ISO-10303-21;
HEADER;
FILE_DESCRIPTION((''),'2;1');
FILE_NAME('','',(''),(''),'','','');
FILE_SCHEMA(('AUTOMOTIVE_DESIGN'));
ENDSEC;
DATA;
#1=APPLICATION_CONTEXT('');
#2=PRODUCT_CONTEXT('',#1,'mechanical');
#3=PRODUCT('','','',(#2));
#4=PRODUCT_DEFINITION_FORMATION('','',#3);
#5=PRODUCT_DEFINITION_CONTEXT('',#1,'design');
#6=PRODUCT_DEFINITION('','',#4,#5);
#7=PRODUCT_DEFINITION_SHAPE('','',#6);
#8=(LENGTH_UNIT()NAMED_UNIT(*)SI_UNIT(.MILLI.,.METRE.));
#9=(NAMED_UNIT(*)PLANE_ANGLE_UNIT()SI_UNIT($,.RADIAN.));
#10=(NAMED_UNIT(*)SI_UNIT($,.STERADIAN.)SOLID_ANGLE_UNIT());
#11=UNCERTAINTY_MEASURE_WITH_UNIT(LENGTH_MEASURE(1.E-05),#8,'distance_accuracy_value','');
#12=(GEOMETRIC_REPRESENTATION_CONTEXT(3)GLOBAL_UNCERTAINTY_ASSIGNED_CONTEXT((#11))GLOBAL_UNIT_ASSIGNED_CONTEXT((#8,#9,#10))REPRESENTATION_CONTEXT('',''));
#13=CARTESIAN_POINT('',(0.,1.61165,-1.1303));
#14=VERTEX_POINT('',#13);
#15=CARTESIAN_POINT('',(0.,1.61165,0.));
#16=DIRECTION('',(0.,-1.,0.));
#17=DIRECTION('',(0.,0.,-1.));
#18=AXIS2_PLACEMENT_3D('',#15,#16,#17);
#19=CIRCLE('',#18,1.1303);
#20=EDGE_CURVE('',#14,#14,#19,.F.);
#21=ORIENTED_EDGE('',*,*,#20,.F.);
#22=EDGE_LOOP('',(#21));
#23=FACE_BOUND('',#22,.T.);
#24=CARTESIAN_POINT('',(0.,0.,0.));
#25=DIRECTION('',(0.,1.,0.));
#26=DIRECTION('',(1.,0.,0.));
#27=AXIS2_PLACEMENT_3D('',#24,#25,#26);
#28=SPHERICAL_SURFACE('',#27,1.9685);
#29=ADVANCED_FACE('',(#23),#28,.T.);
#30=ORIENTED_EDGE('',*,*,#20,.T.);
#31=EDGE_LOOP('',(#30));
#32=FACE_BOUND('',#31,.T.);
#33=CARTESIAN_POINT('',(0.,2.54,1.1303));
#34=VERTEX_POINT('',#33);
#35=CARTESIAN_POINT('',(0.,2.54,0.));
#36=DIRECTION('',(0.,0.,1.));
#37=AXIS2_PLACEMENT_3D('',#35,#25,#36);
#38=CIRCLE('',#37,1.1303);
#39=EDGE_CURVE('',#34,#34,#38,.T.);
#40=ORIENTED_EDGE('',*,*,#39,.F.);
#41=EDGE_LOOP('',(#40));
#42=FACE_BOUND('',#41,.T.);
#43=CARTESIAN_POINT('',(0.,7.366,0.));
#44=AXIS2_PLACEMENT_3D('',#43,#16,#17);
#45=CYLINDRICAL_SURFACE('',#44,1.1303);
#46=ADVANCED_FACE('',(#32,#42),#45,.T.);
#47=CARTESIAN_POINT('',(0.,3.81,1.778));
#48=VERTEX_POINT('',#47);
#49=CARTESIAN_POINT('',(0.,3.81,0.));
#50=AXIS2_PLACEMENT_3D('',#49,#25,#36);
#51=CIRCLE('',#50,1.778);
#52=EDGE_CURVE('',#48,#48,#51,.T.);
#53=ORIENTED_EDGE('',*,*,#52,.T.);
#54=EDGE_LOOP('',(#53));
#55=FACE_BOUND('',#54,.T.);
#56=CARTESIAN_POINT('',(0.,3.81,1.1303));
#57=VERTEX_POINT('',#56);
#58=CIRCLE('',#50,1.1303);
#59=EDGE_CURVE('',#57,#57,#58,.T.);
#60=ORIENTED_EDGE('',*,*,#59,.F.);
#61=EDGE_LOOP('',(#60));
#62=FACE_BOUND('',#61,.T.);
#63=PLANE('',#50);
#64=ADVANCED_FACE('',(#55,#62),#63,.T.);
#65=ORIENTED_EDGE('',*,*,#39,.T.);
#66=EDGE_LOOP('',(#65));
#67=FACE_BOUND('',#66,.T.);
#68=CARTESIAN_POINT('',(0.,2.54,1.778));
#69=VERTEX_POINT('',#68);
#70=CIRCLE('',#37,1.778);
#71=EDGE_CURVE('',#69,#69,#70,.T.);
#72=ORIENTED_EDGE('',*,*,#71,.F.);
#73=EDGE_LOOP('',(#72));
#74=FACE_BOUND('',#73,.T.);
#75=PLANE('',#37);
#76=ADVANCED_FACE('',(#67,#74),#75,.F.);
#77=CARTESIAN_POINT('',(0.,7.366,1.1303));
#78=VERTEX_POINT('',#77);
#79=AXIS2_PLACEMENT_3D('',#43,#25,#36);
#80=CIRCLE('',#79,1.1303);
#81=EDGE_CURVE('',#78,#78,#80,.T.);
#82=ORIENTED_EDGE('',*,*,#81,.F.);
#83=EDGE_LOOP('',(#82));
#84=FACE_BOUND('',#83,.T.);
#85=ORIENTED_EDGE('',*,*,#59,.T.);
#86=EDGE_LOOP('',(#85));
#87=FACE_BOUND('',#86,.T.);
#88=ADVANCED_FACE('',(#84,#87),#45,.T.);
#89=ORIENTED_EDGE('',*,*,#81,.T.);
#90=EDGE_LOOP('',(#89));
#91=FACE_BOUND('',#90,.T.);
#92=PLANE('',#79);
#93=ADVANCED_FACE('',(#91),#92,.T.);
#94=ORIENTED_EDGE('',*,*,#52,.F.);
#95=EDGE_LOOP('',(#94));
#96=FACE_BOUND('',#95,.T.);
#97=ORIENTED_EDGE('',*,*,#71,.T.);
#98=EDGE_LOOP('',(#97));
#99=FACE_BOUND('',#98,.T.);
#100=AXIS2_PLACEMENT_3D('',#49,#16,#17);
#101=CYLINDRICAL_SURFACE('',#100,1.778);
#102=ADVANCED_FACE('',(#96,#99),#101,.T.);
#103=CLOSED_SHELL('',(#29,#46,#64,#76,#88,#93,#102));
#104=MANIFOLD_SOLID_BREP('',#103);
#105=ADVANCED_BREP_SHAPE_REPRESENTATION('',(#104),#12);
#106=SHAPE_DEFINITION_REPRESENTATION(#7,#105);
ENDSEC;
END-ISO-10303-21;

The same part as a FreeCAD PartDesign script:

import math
import FreeCAD as App
import Part
import Sketcher

V = App.Vector
Q = App.Units.Quantity

doc = App.newDocument("Part")
body = doc.addObject("PartDesign::Body", "Body")

# Sketch on XY plane
sketch1 = body.newObject("Sketcher::SketchObject", "Sketch")
sketch1.AttachmentSupport = (doc.getObject("XY_Plane"), [""])
sketch1.MapMode = "FlatFace"
sketch1.addGeometry(Part.LineSegment(V(0, 1.9685, 0), V(0, -1.9685, 0)), False)
sketch1.addGeometry(Part.ArcOfCircle(Part.Circle(V(0, 0, 0), V(0, 0, 1), 1.9685), math.radians(-90), math.radians(90)), False)
sketch1.addConstraint(Sketcher.Constraint("Coincident", 0, 1, 1, 2))
sketch1.addConstraint(Sketcher.Constraint("Coincident", 1, 1, 0, 2))
sketch1.addConstraint(Sketcher.Constraint("Vertical", 0))
sketch1.addConstraint(Sketcher.Constraint("Coincident", 1, 3, -1, 1))
sketch1.addConstraint(Sketcher.Constraint("PointOnObject", 0, 1, -2))
sketch1.addConstraint(Sketcher.Constraint("Radius", 1, Q("0.0775 in")))
revolution = body.newObject("PartDesign::Revolution", "Revolution")
revolution.Profile = sketch1
revolution.ReferenceAxis = (sketch1, ["V_Axis"])
revolution.Angle = 360

# Sketch on XZ plane
sketch2 = body.newObject("Sketcher::SketchObject", "Sketch001")
sketch2.AttachmentSupport = (doc.getObject("XZ_Plane"), [""])
sketch2.MapMode = "FlatFace"
sketch2.addGeometry(Part.Circle(V(0, 0, 0), V(0, 0, 1), 1.1303), False)
sketch2.addConstraint(Sketcher.Constraint("Coincident", 0, 3, -1, 1))
sketch2.addConstraint(Sketcher.Constraint("Diameter", 0, Q("0.089 in")))
pad1 = body.newObject("PartDesign::Pad", "Pad")
pad1.Profile = sketch2
pad1.Length = Q("0.29 in")
pad1.Reversed = True

# Sketch on XZ plane
sketch3 = body.newObject("Sketcher::SketchObject", "Sketch002")
sketch3.AttachmentSupport = (doc.getObject("XZ_Plane"), [""])
sketch3.MapMode = "FlatFace"
sketch3.AttachmentOffset = App.Placement(V(0, 0, -0.1 * 25.4), App.Rotation())
sketch3.addGeometry(Part.Circle(V(0, 0, 0), V(0, 0, 1), 1.778), False)
sketch3.addConstraint(Sketcher.Constraint("Coincident", 0, 3, -1, 1))
sketch3.addConstraint(Sketcher.Constraint("Diameter", 0, Q("0.14 in")))
pad2 = body.newObject("PartDesign::Pad", "Pad001")
pad2.Profile = sketch3
pad2.Length = Q("0.05 in")
pad2.Reversed = True

doc.recompute()
